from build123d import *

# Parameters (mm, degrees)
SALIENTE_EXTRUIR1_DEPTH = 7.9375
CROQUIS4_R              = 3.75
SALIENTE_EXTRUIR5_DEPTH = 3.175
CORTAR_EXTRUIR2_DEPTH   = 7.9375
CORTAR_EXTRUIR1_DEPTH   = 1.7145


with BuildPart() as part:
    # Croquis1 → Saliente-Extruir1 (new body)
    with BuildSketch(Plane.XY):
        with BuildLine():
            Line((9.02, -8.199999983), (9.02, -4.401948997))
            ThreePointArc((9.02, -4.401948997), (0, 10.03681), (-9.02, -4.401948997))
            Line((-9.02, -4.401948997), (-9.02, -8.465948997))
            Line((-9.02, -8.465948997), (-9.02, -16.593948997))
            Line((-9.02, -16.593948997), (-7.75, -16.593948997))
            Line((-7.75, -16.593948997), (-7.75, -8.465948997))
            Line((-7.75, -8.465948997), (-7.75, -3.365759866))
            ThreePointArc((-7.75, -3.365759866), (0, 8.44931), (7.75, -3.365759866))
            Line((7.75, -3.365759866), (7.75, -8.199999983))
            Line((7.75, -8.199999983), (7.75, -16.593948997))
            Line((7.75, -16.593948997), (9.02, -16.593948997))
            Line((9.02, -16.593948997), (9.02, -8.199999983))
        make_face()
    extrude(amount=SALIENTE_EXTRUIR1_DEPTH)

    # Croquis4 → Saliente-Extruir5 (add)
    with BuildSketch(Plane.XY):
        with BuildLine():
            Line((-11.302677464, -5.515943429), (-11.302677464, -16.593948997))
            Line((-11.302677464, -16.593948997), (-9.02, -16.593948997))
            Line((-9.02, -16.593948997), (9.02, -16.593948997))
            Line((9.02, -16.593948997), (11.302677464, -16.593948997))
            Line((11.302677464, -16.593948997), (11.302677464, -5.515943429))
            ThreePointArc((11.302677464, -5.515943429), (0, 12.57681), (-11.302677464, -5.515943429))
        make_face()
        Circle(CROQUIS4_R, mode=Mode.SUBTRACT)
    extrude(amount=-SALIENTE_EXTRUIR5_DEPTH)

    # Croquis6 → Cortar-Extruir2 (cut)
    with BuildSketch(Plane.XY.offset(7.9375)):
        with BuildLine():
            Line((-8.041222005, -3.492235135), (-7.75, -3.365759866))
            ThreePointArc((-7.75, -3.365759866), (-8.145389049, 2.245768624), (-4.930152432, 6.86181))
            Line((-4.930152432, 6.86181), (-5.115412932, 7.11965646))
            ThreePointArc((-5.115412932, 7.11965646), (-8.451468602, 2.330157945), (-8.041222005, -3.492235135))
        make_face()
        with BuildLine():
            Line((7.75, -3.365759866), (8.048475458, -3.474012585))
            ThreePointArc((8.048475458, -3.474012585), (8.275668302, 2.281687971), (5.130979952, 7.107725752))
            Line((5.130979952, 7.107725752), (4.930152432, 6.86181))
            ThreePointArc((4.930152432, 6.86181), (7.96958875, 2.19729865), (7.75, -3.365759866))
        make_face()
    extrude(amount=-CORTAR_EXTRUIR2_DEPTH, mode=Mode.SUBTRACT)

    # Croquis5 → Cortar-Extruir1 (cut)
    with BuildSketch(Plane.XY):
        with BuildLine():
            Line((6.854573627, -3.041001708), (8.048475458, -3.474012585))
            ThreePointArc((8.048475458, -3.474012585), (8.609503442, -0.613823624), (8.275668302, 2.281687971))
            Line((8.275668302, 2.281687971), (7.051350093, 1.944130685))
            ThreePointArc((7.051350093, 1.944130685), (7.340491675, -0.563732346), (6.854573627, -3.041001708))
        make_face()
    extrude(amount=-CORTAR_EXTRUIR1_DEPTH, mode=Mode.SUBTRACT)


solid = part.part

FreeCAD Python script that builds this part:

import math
import FreeCAD as App
import Part
import Sketcher
Q = App.Units.Quantity

doc = App.newDocument("Part")
params = doc.addObject("Spreadsheet::Sheet", "Params")
for row, (alias, value) in enumerate([
    ("sketch1_width", "0.05 in"),
    ("sketch1_height", "0.48 in"),
    ("pad1_length", "0.3125 in"),
    ("pad2_length", "0.125 in"),
    ("pocket1_length", "0.3125 in"),
    ("sketch4_length", "0.05 in"),
    ("pocket2_length", "0.0675 in"),
], start=1):
    params.set(f"A{row}", alias)
    params.set(f"B{row}", "=" + value)
    params.setAlias(f"B{row}", alias)

body = doc.addObject("PartDesign::Body", "Body")

sketch1 = body.newObject("Sketcher::SketchObject", "Sketch")
sketch1.AttachmentSupport = (doc.getObject("XY_Plane"), [""])
sketch1.MapMode = "FlatFace"
sketch1.addGeometry([
    Part.ArcOfCircle(Part.Circle(App.Vector(0, 0, 0), App.Vector(0, 0, 1), 10), math.radians(-26), math.radians(206)),
    Part.LineSegment(App.Vector(-9, -4.4, 0), App.Vector(-9, -16.6, 0)),
    Part.LineSegment(App.Vector(-9, -16.6, 0), App.Vector(-7.8, -16.6, 0)),
    Part.LineSegment(App.Vector(-7.8, -16.6, 0), App.Vector(-7.8, -3.4, 0)),
    Part.ArcOfCircle(Part.Circle(App.Vector(0, 0, 0), App.Vector(0, 0, 1), 8.4), math.radians(-23), math.radians(203)),
    Part.LineSegment(App.Vector(7.8, -3.4, 0), App.Vector(7.8, -16.6, 0)),
    Part.LineSegment(App.Vector(7.8, -16.6, 0), App.Vector(9, -16.6, 0)),
    Part.LineSegment(App.Vector(9, -16.6, 0), App.Vector(9, -4.4, 0)),
], False)
sketch1.addConstraint([
    Sketcher.Constraint("Coincident", 0, 2, 1, 1),
    Sketcher.Constraint("Coincident", 1, 2, 2, 1),
    Sketcher.Constraint("Coincident", 2, 2, 3, 1),
    Sketcher.Constraint("Coincident", 3, 2, 4, 2),
    Sketcher.Constraint("Coincident", 4, 1, 5, 1),
    Sketcher.Constraint("Coincident", 5, 2, 6, 1),
    Sketcher.Constraint("Coincident", 6, 2, 7, 1),
    Sketcher.Constraint("Coincident", 7, 2, 0, 1),
    Sketcher.Constraint("Vertical", 1),
    Sketcher.Constraint("Horizontal", 2),
    Sketcher.Constraint("Vertical", 3),
    Sketcher.Constraint("Vertical", 5),
    Sketcher.Constraint("Horizontal", 6),
    Sketcher.Constraint("Vertical", 7),
    Sketcher.Constraint("Coincident", 0, 3, -1, 1),
    Sketcher.Constraint("Coincident", 4, 3, -1, 1),
    Sketcher.Constraint("Symmetric", 2, 2, 5, 2, -2),
    Sketcher.Constraint("Horizontal", 0, 2, 7, 2),
    Sketcher.Constraint("DistanceX", 2, 1, 2, 2, Q("0.05 in")),
    Sketcher.Constraint("DistanceY", 1, 2, 1, 1, Q("0.48 in")),
    Sketcher.Constraint("Radius", 0, Q("10.03681 mm")),
    Sketcher.Constraint("Radius", 4, Q("8.44931 mm")),
    Sketcher.Constraint("DistanceY", 3, 1, 3, 2, Q("13.228189 mm")),
])
sketch1.setExpression("Constraints[18]", "Params.sketch1_width")
sketch1.setExpression("Constraints[19]", "Params.sketch1_height")
pad1 = body.newObject("PartDesign::Pad", "Pad")
pad1.Profile = sketch1
pad1.setExpression("Length", "Params.pad1_length")

sketch2 = body.newObject("Sketcher::SketchObject", "Sketch001")
sketch2.AttachmentSupport = (doc.getObject("XY_Plane"), [""])
sketch2.MapMode = "FlatFace"
sketch2.addGeometry([
    Part.LineSegment(App.Vector(-11.3, -5.5, 0), App.Vector(-11.3, -16.6, 0)),
    Part.LineSegment(App.Vector(-11.3, -16.6, 0), App.Vector(11.3, -16.6, 0)),
    Part.LineSegment(App.Vector(11.3, -16.6, 0), App.Vector(11.3, -5.5, 0)),
    Part.ArcOfCircle(Part.Circle(App.Vector(0, 0, 0), App.Vector(0, 0, 1), 12.6), math.radians(-26), math.radians(206)),
    Part.Circle(App.Vector(0, 0, 0), App.Vector(0, 0, 1), 3.8),
], False)
sketch2.addConstraint([
    Sketcher.Constraint("Coincident", 0, 2, 1, 1),
    Sketcher.Constraint("Coincident", 1, 2, 2, 1),
    Sketcher.Constraint("Coincident", 2, 2, 3, 1),
    Sketcher.Constraint("Coincident", 3, 2, 0, 1),
    Sketcher.Constraint("Vertical", 0),
    Sketcher.Constraint("Horizontal", 1),
    Sketcher.Constraint("Vertical", 2),
    Sketcher.Constraint("Coincident", 3, 3, -1, 1),
    Sketcher.Constraint("Coincident", 4, 3, -1, 1),
    Sketcher.Constraint("Horizontal", 2, 2, 3, 2),
    Sketcher.Constraint("Diameter", 4, Q("7.5 mm")),
    Sketcher.Constraint("Radius", 3, Q("12.57681 mm")),
    Sketcher.Constraint("DistanceX", 1, 1, 1, 2, Q("22.605355 mm")),
    Sketcher.Constraint("DistanceY", 0, 2, 0, 1, Q("11.078006 mm")),
])
pad2 = body.newObject("PartDesign::Pad", "Pad001")
pad2.Profile = sketch2
pad2.setExpression("Length", "Params.pad2_length")
pad2.Reversed = True

sketch3 = body.newObject("Sketcher::SketchObject", "Sketch002")
sketch3.AttachmentSupport = (doc.getObject("XY_Plane"), [""])
sketch3.MapMode = "FlatFace"
sketch3.AttachmentOffset = App.Placement(App.Vector(0, 0, 0.3125 * 25.4), App.Rotation())
sketch3.addGeometry([
    Part.LineSegment(App.Vector(-8.04, -3.49, 0), App.Vector(-7.75, -3.37, 0)),
    Part.ArcOfCircle(Part.Circle(App.Vector(0, 0, 0), App.Vector(0, 0, 1), 8.45), math.radians(126), math.radians(203)),
    Part.LineSegment(App.Vector(-4.93, 6.86, 0), App.Vector(-5.12, 7.12, 0)),
    Part.ArcOfCircle(Part.Circle(App.Vector(0, 0, 0), App.Vector(0, 0, 1), 8.77), math.radians(126), math.radians(203)),
    Part.LineSegment(App.Vector(7.75, -3.37, 0), App.Vector(8.05, -3.47, 0)),
    Part.ArcOfCircle(Part.Circle(App.Vector(-0.87, -0.24, 0), App.Vector(0, 0, 1), 9.49), math.radians(-20), math.radians(51)),
    Part.LineSegment(App.Vector(5.13, 7.11, 0), App.Vector(4.93, 6.86, 0)),
    Part.ArcOfCircle(Part.Circle(App.Vector(-0.87, -0.24, 0), App.Vector(0, 0, 1), 9.17), math.radians(-20), math.radians(51)),
], False)
sketch3.addConstraint([
    Sketcher.Constraint("Coincident", 0, 2, 1, 2),
    Sketcher.Constraint("Coincident", 1, 1, 2, 1),
    Sketcher.Constraint("Coincident", 2, 2, 3, 1),
    Sketcher.Constraint("Coincident", 3, 2, 0, 1),
    Sketcher.Constraint("Coincident", 4, 2, 5, 1),
    Sketcher.Constraint("Coincident", 5, 2, 6, 1),
    Sketcher.Constraint("Coincident", 6, 2, 7, 2),
    Sketcher.Constraint("Coincident", 7, 1, 4, 1),
    Sketcher.Constraint("Coincident", 1, 3, -1, 1),
    Sketcher.Constraint("Coincident", 3, 3, -1, 1),
    Sketcher.Constraint("Coincident", 7, 3, 5, 3),
    Sketcher.Constraint("Symmetric", 1, 1, 6, 2, -2),
    Sketcher.Constraint("Symmetric", 0, 2, 7, 1, -2),
    Sketcher.Constraint("Equal", 2, 4),
    Sketcher.Constraint("Radius", 1, Q("8.44931 mm")),
    Sketcher.Constraint("Radius", 3, Q("8.76681 mm")),
    Sketcher.Constraint("Radius", 5, Q("9.486169 mm")),
    Sketcher.Constraint("DistanceX", 0, 2, -1, 1, Q("7.75 mm")),
    Sketcher.Constraint("DistanceY", 5, 3, -1, 1, Q("0.239671 mm")),
    Sketcher.Constraint("DistanceX", -1, 1, 5, 2, Q("5.13098 mm")),
    Sketcher.Constraint("DistanceX", 2, 2, 1, 1, Q("0.18526 mm")),
    Sketcher.Constraint("DistanceX", 3, 2, 5, 3, Q("7.171938 mm")),
    Sketcher.Constraint("DistanceX", 7, 3, 4, 2, Q("8.917759 mm")),
])
pocket1 = body.newObject("PartDesign::Pocket", "Pocket")
pocket1.Profile = sketch3
pocket1.setExpression("Length", "Params.pocket1_length")

sketch4 = body.newObject("Sketcher::SketchObject", "Sketch003")
sketch4.AttachmentSupport = (doc.getObject("XY_Plane"), [""])
sketch4.MapMode = "FlatFace"
sketch4.addGeometry([
    Part.LineSegment(App.Vector(6.9, -3, 0), App.Vector(8, -3.5, 0)),
    Part.ArcOfCircle(Part.Circle(App.Vector(-0.9, -0.2, 0), App.Vector(0, 0, 1), 9.5), math.radians(-20), math.radians(15)),
    Part.LineSegment(App.Vector(8.3, 2.3, 0), App.Vector(7.1, 1.9, 0)),
    Part.ArcOfCircle(Part.Circle(App.Vector(-0.9, -0.2, 0), App.Vector(0, 0, 1), 8.2), math.radians(-20), math.radians(15)),
], False)
sketch4.addConstraint([
    Sketcher.Constraint("Coincident", 0, 2, 1, 1),
    Sketcher.Constraint("Coincident", 1, 2, 2, 1),
    Sketcher.Constraint("Coincident", 2, 2, 3, 2),
    Sketcher.Constraint("Coincident", 3, 1, 0, 1),
    Sketcher.Constraint("Coincident", 3, 3, 1, 3),
    Sketcher.Constraint("Distance", 0, Q("0.05 in")),
    Sketcher.Constraint("Radius", 1, Q("9.486169 mm")),
    Sketcher.Constraint("DistanceY", 3, 1, -1, 1, Q("3.041002 mm")),
    Sketcher.Constraint("DistanceY", 0, 2, 1, 2, Q("5.755701 mm")),
    Sketcher.Constraint("DistanceY", 1, 3, 2, 2, Q("2.183801 mm")),
    Sketcher.Constraint("DistanceX", 3, 1, 0, 2, Q("1.193902 mm")),
    Sketcher.Constraint("DistanceY", 1, 3, -1, 1, Q("0.239671 mm")),
    Sketcher.Constraint("DistanceX", -1, 1, 1, 2, Q("8.275668 mm")),
])
sketch4.setExpression("Constraints[5]", "Params.sketch4_length")
pocket2 = body.newObject("PartDesign::Pocket", "Pocket001")
pocket2.Profile = sketch4
pocket2.setExpression("Length", "Params.pocket2_length")

doc.recompute()
